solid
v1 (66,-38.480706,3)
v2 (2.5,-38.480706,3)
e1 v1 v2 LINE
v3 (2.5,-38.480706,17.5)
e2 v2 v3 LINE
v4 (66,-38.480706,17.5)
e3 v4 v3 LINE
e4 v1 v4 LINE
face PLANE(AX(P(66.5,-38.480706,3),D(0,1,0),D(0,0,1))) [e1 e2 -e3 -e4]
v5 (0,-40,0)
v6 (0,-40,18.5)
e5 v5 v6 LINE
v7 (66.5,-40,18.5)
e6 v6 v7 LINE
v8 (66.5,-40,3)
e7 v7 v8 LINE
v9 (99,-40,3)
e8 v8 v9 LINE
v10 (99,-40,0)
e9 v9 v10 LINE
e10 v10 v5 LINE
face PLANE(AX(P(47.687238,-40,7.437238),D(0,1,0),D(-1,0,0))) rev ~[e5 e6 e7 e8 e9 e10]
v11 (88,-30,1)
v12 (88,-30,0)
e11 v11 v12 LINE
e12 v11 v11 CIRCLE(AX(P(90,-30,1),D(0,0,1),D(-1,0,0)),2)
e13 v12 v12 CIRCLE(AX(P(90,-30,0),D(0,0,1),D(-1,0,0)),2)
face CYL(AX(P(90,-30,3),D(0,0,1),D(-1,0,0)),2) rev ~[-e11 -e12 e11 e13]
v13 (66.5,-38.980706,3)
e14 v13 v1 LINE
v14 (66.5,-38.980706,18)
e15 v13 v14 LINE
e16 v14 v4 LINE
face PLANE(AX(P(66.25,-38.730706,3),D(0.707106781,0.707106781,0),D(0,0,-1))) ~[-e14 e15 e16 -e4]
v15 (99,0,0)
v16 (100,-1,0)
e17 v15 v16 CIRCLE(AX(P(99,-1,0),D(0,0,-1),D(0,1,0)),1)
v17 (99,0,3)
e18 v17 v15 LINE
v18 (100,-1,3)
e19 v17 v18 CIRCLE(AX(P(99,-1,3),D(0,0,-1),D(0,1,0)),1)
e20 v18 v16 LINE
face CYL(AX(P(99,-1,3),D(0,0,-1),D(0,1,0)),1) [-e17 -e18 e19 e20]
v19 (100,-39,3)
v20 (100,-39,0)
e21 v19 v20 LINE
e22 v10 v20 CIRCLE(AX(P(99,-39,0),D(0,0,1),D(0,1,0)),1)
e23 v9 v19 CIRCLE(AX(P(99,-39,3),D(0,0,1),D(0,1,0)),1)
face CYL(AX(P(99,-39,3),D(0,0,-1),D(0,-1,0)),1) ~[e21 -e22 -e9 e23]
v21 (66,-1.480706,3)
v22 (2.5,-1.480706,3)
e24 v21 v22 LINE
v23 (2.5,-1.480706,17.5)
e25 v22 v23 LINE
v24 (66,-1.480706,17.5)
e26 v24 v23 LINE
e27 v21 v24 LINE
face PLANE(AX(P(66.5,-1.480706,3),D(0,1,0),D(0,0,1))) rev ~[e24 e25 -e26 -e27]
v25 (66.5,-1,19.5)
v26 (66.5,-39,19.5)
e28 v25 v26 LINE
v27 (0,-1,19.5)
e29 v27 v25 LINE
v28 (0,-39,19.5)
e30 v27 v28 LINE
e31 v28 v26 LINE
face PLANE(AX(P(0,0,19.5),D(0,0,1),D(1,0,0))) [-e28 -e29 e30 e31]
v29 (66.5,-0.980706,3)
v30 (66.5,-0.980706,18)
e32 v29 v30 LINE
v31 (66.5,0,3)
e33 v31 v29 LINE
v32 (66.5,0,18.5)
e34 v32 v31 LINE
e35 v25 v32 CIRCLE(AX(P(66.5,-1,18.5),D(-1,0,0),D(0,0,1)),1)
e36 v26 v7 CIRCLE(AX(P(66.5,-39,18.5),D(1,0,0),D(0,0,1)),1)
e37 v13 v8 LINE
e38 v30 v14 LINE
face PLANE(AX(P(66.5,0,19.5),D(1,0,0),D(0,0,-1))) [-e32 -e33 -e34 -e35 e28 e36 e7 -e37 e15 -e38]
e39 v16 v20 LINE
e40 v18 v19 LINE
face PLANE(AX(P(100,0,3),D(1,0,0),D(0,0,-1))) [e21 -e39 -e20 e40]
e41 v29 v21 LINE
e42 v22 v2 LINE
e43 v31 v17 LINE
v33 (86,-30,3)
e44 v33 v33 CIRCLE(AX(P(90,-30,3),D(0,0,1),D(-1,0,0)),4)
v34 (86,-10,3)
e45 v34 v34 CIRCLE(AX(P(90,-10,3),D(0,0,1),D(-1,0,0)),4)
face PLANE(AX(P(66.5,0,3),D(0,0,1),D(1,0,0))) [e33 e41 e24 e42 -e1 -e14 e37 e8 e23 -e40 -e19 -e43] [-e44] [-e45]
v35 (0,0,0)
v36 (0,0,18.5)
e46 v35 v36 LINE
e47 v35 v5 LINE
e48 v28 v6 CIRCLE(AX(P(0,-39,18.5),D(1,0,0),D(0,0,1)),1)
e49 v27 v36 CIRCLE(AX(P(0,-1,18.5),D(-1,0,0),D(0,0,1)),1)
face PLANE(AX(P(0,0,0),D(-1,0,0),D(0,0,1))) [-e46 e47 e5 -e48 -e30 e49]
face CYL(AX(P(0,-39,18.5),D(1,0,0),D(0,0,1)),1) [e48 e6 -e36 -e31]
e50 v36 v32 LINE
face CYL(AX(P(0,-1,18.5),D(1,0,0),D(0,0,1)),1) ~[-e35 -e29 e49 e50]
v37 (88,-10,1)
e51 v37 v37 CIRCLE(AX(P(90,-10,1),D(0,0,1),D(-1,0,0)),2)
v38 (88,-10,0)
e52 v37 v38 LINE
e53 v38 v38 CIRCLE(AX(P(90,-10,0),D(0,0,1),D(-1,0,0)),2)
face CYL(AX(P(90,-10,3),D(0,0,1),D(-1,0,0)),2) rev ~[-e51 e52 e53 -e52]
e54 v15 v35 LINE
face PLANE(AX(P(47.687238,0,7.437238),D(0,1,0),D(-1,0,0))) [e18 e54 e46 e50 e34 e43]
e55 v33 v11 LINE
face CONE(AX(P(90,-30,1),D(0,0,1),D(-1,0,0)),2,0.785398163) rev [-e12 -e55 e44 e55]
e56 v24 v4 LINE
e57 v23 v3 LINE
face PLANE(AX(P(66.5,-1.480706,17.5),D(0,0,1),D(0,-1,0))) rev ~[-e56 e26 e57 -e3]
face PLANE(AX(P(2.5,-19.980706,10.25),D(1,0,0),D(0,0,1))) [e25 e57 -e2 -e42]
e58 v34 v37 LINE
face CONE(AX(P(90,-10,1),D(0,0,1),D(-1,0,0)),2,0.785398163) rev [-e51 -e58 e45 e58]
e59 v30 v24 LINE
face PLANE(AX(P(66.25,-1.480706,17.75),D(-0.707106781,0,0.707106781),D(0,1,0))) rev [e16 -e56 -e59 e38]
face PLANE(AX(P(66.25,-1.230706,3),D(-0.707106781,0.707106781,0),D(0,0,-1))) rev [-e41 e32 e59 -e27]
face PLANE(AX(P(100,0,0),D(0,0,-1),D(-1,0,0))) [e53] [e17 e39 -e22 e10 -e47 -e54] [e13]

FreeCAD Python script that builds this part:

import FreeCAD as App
import Part
import Sketcher
from FreeCAD import Vector


def edges_at(feature, points):
    """Names of the edges that pass closest to the given points."""
    edges = feature.Shape.Edges
    near = lambda p: min(range(len(edges)), key=lambda i: edges[i].distToShape(Part.Vertex(*p))[0])
    return sorted({f"Edge{near(p) + 1}" for p in points})


def add_polygon(sketch, points):
    """Adds a closed chain of lines whose ends are joined by coincident constraints."""
    first, n = sketch.GeometryCount, len(points)
    for a, b in zip(points, points[1:] + points[:1]):
        sketch.addGeometry(Part.LineSegment(App.Vector(*a, 0), App.Vector(*b, 0)), False)
    for i in range(n):
        sketch.addConstraint(Sketcher.Constraint("Coincident", first + i, 2, first + (i + 1) % n, 1))

doc = App.newDocument("Part")
body = doc.addObject("PartDesign::Body", "Body")

sketch1 = body.newObject("Sketcher::SketchObject", "Sketch")
sketch1.AttachmentSupport = (doc.getObject("XZ_Plane"), [""])
sketch1.MapMode = "FlatFace"
add_polygon(sketch1, [(0, 19.5), (0, 0), (100, 0), (100, 3), (66.5, 3), (66.5, 19.5)])
sketch1.addConstraint([
    Sketcher.Constraint("Vertical", 0),
    Sketcher.Constraint("Horizontal", 1),
    Sketcher.Constraint("Vertical", 2),
    Sketcher.Constraint("Horizontal", 3),
    Sketcher.Constraint("Vertical", 4),
    Sketcher.Constraint("Horizontal", 5),
    Sketcher.Constraint("Coincident", 0, 2, -1, 1),
    Sketcher.Constraint("DistanceX", 1, 1, 1, 2, 100.0),
    Sketcher.Constraint("DistanceY", 2, 1, 2, 2, 3.0),
    Sketcher.Constraint("DistanceX", 3, 2, 3, 1, 33.5),
    Sketcher.Constraint("DistanceY", 0, 2, 0, 1, 19.5),
])
pad1 = body.newObject("PartDesign::Pad", "Pad")
pad1.Profile = sketch1
pad1.Length = 40

sketch2 = body.newObject("Sketcher::SketchObject", "Sketch001")
sketch2.AttachmentSupport = (doc.getObject("YZ_Plane"), [""])
sketch2.MapMode = "FlatFace"
sketch2.AttachmentOffset = App.Placement(Vector(0, 0, 66.5), App.Rotation())
add_polygon(sketch2, [(-38, 3), (-1, 3), (-1, 18), (-38, 18)])
sketch2.addConstraint([
    Sketcher.Constraint("Horizontal", 0),
    Sketcher.Constraint("Vertical", 1),
    Sketcher.Constraint("Horizontal", 2),
    Sketcher.Constraint("Vertical", 3),
    Sketcher.Constraint("DistanceX", 0, 1, 0, 2, 37.0),
    Sketcher.Constraint("DistanceY", 1, 1, 1, 2, 14.5),
    Sketcher.Constraint("DistanceY", -1, 1, 0, 2, 3.0),
    Sketcher.Constraint("DistanceX", 0, 2, -1, 1, 1.480706),
])
pocket1 = body.newObject("PartDesign::Pocket", "Pocket")
pocket1.Profile = sketch2
pocket1.Length = 64

sketch3 = body.newObject("Sketcher::SketchObject", "Sketch002")
sketch3.AttachmentSupport = (doc.getObject("XY_Plane"), [""])
sketch3.MapMode = "FlatFace"
sketch3.AttachmentOffset = App.Placement(Vector(0, 0, 3), App.Rotation())
sketch3.addGeometry([
    Part.Circle(Vector(90, -30, 0), Vector(0, 0, 1), 2),
    Part.Circle(Vector(90, -10, 0), Vector(0, 0, 1), 2),
], False)
sketch3.addConstraint([
    Sketcher.Constraint("Equal", 0, 1),
    Sketcher.Constraint("Vertical", 0, 3, 1, 3),
    Sketcher.Constraint("Diameter", 0, 4.0),
    Sketcher.Constraint("DistanceX", -1, 1, 0, 3, 90.0),
    Sketcher.Constraint("DistanceY", 0, 3, -1, 1, 30.0),
    Sketcher.Constraint("DistanceY", 1, 3, -1, 1, 10.0),
])
pocket2 = body.newObject("PartDesign::Pocket", "Pocket001")
pocket2.Profile = sketch3
pocket2.Length = 5
doc.recompute()

fillet = body.newObject("PartDesign::Fillet", "Fillet")
fillet.Base = (pocket2, edges_at(pocket2, [(33.25, 0, 19.5), (33.25, -40, 19.5)]))
fillet.Radius = 1
doc.recompute()

fillet2 = body.newObject("PartDesign::Fillet", "Fillet001")
fillet2.Base = (fillet, edges_at(fillet, [(100, 0, 1.5), (100, -40, 1.5)]))
fillet2.Radius = 1
doc.recompute()

chamfer = body.newObject("PartDesign::Chamfer", "Chamfer")
chamfer.Base = (fillet2, edges_at(fillet2, [(66.5, -38.481, 10.25), (66.5, -19.981, 17.5), (66.5, -1.481, 10.25)]))
chamfer.Size = 0.5
doc.recompute()

chamfer2 = body.newObject("PartDesign::Chamfer", "Chamfer001")
chamfer2.Base = (chamfer, edges_at(chamfer, [(92, -10, 3), (92, -30, 3)]))
chamfer2.Size = 2

doc.recompute()
